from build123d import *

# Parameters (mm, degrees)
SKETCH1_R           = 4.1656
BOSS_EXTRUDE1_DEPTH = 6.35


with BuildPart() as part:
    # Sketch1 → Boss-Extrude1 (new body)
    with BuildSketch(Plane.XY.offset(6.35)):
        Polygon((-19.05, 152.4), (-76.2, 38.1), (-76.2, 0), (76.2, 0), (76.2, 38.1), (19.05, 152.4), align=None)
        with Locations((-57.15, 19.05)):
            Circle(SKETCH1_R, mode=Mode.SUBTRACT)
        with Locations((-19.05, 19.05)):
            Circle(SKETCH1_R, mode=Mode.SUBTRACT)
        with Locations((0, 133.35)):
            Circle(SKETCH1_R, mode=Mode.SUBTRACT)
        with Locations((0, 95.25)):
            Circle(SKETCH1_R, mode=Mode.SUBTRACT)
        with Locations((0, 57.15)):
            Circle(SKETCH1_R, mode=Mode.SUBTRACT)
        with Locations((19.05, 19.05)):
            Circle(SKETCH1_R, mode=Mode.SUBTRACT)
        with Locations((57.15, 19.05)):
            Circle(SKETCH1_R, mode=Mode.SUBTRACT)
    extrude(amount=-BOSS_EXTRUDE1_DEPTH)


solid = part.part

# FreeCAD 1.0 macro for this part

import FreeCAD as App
import Part
import Sketcher
Q = App.Units.Quantity


def add_polygon(sketch, points):
    """Adds a closed chain of lines whose ends are joined by coincident constraints."""
    first, n = sketch.GeometryCount, len(points)
    for a, b in zip(points, points[1:] + points[:1]):
        sketch.addGeometry(Part.LineSegment(App.Vector(*a, 0), App.Vector(*b, 0)), False)
    for i in range(n):
        sketch.addConstraint(Sketcher.Constraint("Coincident", first + i, 2, first + (i + 1) % n, 1))

doc = App.newDocument("Part")
body = doc.addObject("PartDesign::Body", "Body")

sketch1 = body.newObject("Sketcher::SketchObject", "Sketch")
sketch1.AttachmentSupport = (doc.getObject("XY_Plane"), [""])
sketch1.MapMode = "FlatFace"
sketch1.AttachmentOffset = App.Placement(App.Vector(0, 0, 0.25 * 25.4), App.Rotation())
add_polygon(sketch1, [(-19.1, 152.4), (-76.2, 38.1), (-76.2, 0), (76.2, 0), (76.2, 38.1), (19.1, 152.4)])
sketch1.addGeometry(Part.Circle(App.Vector(-57.1, 19.1, 0), App.Vector(0, 0, 1), 4.2), False)
sketch1.addGeometry(Part.Circle(App.Vector(-19.1, 19.1, 0), App.Vector(0, 0, 1), 4.2), False)
sketch1.addGeometry(Part.Circle(App.Vector(19.1, 19.1, 0), App.Vector(0, 0, 1), 4.2), False)
sketch1.addGeometry(Part.Circle(App.Vector(57.1, 19.1, 0), App.Vector(0, 0, 1), 4.2), False)
sketch1.addGeometry(Part.Circle(App.Vector(0, 57.1, 0), App.Vector(0, 0, 1), 4.2), False)
sketch1.addGeometry(Part.Circle(App.Vector(0, 95.2, 0), App.Vector(0, 0, 1), 4.2), False)
sketch1.addGeometry(Part.Circle(App.Vector(0, 133.3, 0), App.Vector(0, 0, 1), 4.2), False)
sketch1.addConstraint([
    Sketcher.Constraint("Vertical", 1),
    Sketcher.Constraint("Horizontal", 2),
    Sketcher.Constraint("Vertical", 3),
    Sketcher.Constraint("Horizontal", 5),
    Sketcher.Constraint("Equal", 6, 7),
    Sketcher.Constraint("Equal", 7, 8),
    Sketcher.Constraint("Equal", 8, 9),
    Sketcher.Constraint("Equal", 9, 10),
    Sketcher.Constraint("Equal", 10, 11),
    Sketcher.Constraint("Equal", 11, 12),
    Sketcher.Constraint("Symmetric", 1, 2, 2, 2, -1, 1),
    Sketcher.Constraint("Symmetric", 7, 3, 8, 3, -2),
    Sketcher.Constraint("Symmetric", 6, 3, 9, 3, -2),
    Sketcher.Constraint("PointOnObject", 10, 3, -2),
    Sketcher.Constraint("PointOnObject", 11, 3, -2),
    Sketcher.Constraint("PointOnObject", 12, 3, -2),
    Sketcher.Constraint("Horizontal", 6, 3, 7, 3),
    Sketcher.Constraint("Horizontal", 0, 2, 3, 2),
    Sketcher.Constraint("Vertical", 8, 3, 4, 2),
    Sketcher.Constraint("Vertical", 7, 3, 5, 2),
    Sketcher.Constraint("Equal", 5, 1),
    Sketcher.Constraint("DistanceX", 2, 1, 2, 2, Q("6 in")),
    Sketcher.Constraint("Diameter", 6, Q("0.328 in")),
    Sketcher.Constraint("DistanceX", 5, 2, 5, 1, Q("1.5 in")),
    Sketcher.Constraint("DistanceY", -1, 1, 4, 2, Q("6 in")),
    Sketcher.Constraint("DistanceX", 6, 3, 8, 3, Q("3 in")),
    Sketcher.Constraint("DistanceY", 7, 3, 11, 3, Q("3 in")),
    Sketcher.Constraint("DistanceY", 10, 3, 12, 3, Q("3 in")),
    Sketcher.Constraint("DistanceY", 7, 3, 10, 3, Q("1.5 in")),
    Sketcher.Constraint("DistanceY", -1, 1, 6, 3, Q("0.75 in")),
])
pad1 = body.newObject("PartDesign::Pad", "Pad")
pad1.Profile = sketch1
pad1.Length = Q("0.25 in")
pad1.Reversed = True

doc.recompute()
